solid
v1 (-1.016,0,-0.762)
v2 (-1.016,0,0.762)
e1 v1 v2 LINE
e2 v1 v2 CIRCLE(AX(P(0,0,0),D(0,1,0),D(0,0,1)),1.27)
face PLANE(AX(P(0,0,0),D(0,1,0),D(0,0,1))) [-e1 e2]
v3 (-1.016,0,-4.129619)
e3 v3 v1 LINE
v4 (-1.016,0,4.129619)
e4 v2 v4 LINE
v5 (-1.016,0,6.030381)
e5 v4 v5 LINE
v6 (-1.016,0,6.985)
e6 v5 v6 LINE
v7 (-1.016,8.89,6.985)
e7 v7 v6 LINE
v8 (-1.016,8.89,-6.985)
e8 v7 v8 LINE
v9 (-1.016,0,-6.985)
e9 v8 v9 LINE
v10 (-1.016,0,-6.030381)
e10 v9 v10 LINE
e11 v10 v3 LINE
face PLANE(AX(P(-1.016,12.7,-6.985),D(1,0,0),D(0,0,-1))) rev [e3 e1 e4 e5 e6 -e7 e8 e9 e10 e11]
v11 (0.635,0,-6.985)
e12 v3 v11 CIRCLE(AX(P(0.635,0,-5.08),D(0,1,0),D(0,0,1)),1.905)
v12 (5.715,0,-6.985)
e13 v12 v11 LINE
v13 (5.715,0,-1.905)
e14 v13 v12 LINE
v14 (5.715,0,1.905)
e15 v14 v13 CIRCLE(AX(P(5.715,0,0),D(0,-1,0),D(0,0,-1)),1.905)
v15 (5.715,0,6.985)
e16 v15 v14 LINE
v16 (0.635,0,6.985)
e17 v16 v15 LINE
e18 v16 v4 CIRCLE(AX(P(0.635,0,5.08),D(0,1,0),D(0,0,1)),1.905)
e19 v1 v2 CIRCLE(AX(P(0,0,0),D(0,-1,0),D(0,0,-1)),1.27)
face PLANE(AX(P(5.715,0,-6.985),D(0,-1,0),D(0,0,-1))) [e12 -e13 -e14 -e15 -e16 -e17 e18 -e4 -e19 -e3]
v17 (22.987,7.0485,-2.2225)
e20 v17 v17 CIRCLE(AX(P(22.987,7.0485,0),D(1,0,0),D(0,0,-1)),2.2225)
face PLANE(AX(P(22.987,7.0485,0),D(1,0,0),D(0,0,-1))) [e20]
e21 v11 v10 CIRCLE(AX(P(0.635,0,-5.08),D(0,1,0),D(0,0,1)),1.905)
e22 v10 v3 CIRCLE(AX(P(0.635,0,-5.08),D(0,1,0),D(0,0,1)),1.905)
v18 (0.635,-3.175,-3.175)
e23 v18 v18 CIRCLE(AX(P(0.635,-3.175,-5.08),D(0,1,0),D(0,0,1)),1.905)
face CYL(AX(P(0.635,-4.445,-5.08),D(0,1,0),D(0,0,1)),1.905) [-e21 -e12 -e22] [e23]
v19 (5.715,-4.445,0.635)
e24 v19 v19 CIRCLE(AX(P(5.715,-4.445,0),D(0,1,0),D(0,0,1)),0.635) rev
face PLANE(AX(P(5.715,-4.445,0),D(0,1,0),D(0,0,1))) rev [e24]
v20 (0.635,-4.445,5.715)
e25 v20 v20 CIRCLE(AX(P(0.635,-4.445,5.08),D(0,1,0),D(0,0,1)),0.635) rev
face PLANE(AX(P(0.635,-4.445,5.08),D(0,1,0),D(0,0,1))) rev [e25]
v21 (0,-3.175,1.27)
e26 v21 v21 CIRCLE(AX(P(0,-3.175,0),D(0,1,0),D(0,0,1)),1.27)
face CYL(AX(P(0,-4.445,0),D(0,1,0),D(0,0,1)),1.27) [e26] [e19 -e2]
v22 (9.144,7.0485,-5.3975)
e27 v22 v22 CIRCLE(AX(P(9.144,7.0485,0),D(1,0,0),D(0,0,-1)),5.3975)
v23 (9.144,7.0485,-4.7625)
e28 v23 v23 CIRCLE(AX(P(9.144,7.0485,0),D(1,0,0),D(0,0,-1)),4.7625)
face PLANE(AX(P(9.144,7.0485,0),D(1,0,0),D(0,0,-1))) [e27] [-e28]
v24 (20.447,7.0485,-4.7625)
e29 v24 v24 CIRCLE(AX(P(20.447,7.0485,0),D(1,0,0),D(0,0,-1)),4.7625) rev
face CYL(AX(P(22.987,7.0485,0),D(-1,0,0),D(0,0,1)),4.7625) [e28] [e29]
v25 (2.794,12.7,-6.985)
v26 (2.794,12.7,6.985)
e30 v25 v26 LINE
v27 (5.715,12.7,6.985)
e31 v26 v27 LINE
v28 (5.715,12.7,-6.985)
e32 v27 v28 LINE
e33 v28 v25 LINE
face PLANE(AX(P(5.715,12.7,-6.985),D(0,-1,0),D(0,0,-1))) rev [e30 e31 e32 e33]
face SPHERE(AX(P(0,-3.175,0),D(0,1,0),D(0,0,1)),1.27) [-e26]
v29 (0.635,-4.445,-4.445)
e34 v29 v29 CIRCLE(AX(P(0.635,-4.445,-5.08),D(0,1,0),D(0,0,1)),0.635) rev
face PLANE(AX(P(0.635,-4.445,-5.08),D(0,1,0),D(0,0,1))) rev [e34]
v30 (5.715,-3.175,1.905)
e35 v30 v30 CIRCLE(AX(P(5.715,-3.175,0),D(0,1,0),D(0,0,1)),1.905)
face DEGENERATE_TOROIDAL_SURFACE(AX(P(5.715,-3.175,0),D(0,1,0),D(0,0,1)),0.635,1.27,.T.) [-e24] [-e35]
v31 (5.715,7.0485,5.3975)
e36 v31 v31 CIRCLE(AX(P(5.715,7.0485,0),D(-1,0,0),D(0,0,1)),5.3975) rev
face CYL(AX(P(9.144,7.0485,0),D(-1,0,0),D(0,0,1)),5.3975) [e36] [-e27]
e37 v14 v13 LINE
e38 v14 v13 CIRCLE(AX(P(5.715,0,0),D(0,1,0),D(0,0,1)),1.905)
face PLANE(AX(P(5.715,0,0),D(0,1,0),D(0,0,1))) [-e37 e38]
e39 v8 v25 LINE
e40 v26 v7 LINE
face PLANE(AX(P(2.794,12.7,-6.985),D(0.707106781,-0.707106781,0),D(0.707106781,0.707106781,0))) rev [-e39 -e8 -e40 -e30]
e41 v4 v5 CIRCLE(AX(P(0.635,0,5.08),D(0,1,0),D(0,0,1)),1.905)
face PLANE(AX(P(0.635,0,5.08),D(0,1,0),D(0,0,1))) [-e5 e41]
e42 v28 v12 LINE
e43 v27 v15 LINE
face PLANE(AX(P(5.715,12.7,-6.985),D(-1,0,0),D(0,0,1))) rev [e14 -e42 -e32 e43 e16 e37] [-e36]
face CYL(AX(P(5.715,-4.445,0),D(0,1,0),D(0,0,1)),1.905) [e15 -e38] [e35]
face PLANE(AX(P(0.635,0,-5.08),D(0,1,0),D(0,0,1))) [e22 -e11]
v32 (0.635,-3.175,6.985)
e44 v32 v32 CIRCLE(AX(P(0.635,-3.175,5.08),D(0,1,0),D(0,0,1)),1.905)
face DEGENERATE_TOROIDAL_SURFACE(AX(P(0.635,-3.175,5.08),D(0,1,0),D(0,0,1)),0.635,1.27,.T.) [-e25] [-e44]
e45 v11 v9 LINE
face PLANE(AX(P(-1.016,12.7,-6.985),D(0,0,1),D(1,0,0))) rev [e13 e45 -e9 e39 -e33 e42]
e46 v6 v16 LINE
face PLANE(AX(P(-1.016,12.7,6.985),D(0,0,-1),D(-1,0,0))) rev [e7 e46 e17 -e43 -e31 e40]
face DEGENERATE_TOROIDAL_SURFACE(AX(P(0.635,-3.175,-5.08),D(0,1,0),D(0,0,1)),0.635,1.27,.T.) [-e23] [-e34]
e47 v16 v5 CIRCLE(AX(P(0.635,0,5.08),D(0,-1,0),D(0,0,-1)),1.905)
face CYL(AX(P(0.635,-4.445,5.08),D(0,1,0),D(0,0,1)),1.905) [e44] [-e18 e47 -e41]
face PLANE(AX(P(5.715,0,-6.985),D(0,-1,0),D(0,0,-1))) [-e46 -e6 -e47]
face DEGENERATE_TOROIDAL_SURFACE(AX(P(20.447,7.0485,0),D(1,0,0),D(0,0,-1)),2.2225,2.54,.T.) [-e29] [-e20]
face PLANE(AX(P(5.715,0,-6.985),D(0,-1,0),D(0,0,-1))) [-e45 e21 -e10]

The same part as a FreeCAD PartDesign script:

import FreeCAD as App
import Part
import Sketcher
Q = App.Units.Quantity


def edges_at(feature, points):
    """Names of the edges that pass closest to the given points."""
    edges = feature.Shape.Edges
    near = lambda p: min(range(len(edges)), key=lambda i: edges[i].distToShape(Part.Vertex(*p))[0])
    return sorted({f"Edge{near(p) + 1}" for p in points})

doc = App.newDocument("Part")
body = doc.addObject("PartDesign::Body", "Body")

sketch1 = body.newObject("Sketcher::SketchObject", "Sketch")
sketch1.AttachmentSupport = (doc.getObject("XZ_Plane"), [""])
sketch1.MapMode = "FlatFace"
sketch1.addGeometry(Part.Circle(App.Vector(0.635, -5.08, 0), App.Vector(0, 0, 1), 1.905), False)
sketch1.addConstraint([
    Sketcher.Constraint("Diameter", 0, Q("0.15 in")),
    Sketcher.Constraint("DistanceY", 0, 3, -1, 1, Q("0.2 in")),
    Sketcher.Constraint("DistanceX", -1, 1, 0, 3, Q("0.025 in")),
])
pad1 = body.newObject("PartDesign::Pad", "Pad")
pad1.Profile = sketch1
pad1.Length = Q("0.175 in")
body2 = doc.addObject("PartDesign::Body", "Body001")

sketch2 = body2.newObject("Sketcher::SketchObject", "Sketch001")
sketch2.AttachmentSupport = (doc.getObject("XZ_Plane001"), [""])
sketch2.MapMode = "FlatFace"
sketch2.addGeometry(Part.Circle(App.Vector(0.635, 5.08, 0), App.Vector(0, 0, 1), 1.905), False)
sketch2.addConstraint([
    Sketcher.Constraint("Diameter", 0, Q("0.15 in")),
    Sketcher.Constraint("DistanceY", -1, 1, 0, 3, Q("0.2 in")),
    Sketcher.Constraint("DistanceX", -1, 1, 0, 3, Q("0.025 in")),
])
pad2 = body2.newObject("PartDesign::Pad", "Pad001")
pad2.Profile = sketch2
pad2.Length = Q("0.175 in")
body3 = doc.addObject("PartDesign::Body", "Body002")

sketch3 = body3.newObject("Sketcher::SketchObject", "Sketch002")
sketch3.AttachmentSupport = (doc.getObject("XZ_Plane002"), [""])
sketch3.MapMode = "FlatFace"
sketch3.addGeometry(Part.Circle(App.Vector(5.715, 0, 0), App.Vector(0, 0, 1), 1.905), False)
sketch3.addConstraint([
    Sketcher.Constraint("PointOnObject", 0, 3, -1),
    Sketcher.Constraint("Diameter", 0, Q("0.15 in")),
    Sketcher.Constraint("DistanceX", -1, 1, 0, 3, Q("0.225 in")),
])
pad3 = body3.newObject("PartDesign::Pad", "Pad002")
pad3.Profile = sketch3
pad3.Length = Q("0.175 in")
body4 = doc.addObject("PartDesign::Body", "Body003")

sketch4 = body4.newObject("Sketcher::SketchObject", "Sketch003")
sketch4.AttachmentSupport = (doc.getObject("XZ_Plane003"), [""])
sketch4.MapMode = "FlatFace"
sketch4.addGeometry(Part.Circle(App.Vector(0, 0, 0), App.Vector(0, 0, 1), 1.27), False)
sketch4.addConstraint([
    Sketcher.Constraint("Coincident", 0, 3, -1, 1),
    Sketcher.Constraint("Diameter", 0, Q("0.1 in")),
])
pad4 = body4.newObject("PartDesign::Pad", "Pad003")
pad4.Profile = sketch4
pad4.Length = Q("0.175 in")
body.AllowCompound = True
doc.recompute()

boolean = body.newObject("PartDesign::Boolean", "Boolean")
boolean.Type = "Fuse"
boolean.addObjects([body2])
doc.recompute()

boolean2 = body.newObject("PartDesign::Boolean", "Boolean001")
boolean2.Type = "Fuse"
boolean2.addObjects([body3])
doc.recompute()

boolean3 = body.newObject("PartDesign::Boolean", "Boolean002")
boolean3.Type = "Fuse"
boolean3.addObjects([body4])

sketch5 = body.newObject("Sketcher::SketchObject", "Sketch004")
sketch5.AttachmentSupport = (doc.getObject("XZ_Plane"), [""])
sketch5.MapMode = "FlatFace"
sketch5.addGeometry([
    Part.LineSegment(App.Vector(5.715, 6.985, 0), App.Vector(5.715, -6.985, 0)),
    Part.LineSegment(App.Vector(5.715, -6.985, 0), App.Vector(-1.016, -6.985, 0)),
    Part.LineSegment(App.Vector(-1.016, -6.985, 0), App.Vector(-1.016, 6.985, 0)),
    Part.LineSegment(App.Vector(-1.016, 6.985, 0), App.Vector(5.715, 6.985, 0)),
], False)
sketch5.addConstraint([
    Sketcher.Constraint("Coincident", 0, 2, 1, 1),
    Sketcher.Constraint("Coincident", 1, 2, 2, 1),
    Sketcher.Constraint("Coincident", 2, 2, 3, 1),
    Sketcher.Constraint("Coincident", 3, 2, 0, 1),
    Sketcher.Constraint("Vertical", 0),
    Sketcher.Constraint("Horizontal", 1),
    Sketcher.Constraint("Vertical", 2),
    Sketcher.Constraint("Horizontal", 3),
    Sketcher.Constraint("DistanceY", 0, 2, 0, 1, Q("0.55 in")),
    Sketcher.Constraint("DistanceX", 1, 2, 1, 1, Q("0.265 in")),
    Sketcher.Constraint("DistanceX", 1, 2, -1, 1, Q("0.04 in")),
    Sketcher.Constraint("DistanceY", 0, 2, -1, 1, Q("0.275 in")),
])
pad5 = body.newObject("PartDesign::Pad", "Pad004")
pad5.Profile = sketch5
pad5.Length = Q("0.5 in")
pad5.Reversed = True
doc.recompute()

chamfer = body.newObject("PartDesign::Chamfer", "Chamfer")
chamfer.Base = (pad5, edges_at(pad5, [(-1.016, 12.7, 0)]))
chamfer.Size = Q("0.15 in")

sketch6 = body.newObject("Sketcher::SketchObject", "Sketch005")
sketch6.AttachmentSupport = (doc.getObject("YZ_Plane"), [""])
sketch6.MapMode = "FlatFace"
sketch6.AttachmentOffset = App.Placement(App.Vector(0, 0, 0.225 * 25.4), App.Rotation())
sketch6.addGeometry(Part.Circle(App.Vector(7.0485, 0, 0), App.Vector(0, 0, 1), 5.3975), False)
sketch6.addConstraint([
    Sketcher.Constraint("PointOnObject", 0, 3, -1),
    Sketcher.Constraint("Diameter", 0, Q("0.425 in")),
    Sketcher.Constraint("DistanceX", -1, 1, 0, 3, Q("0.2775 in")),
])
pad6 = body.newObject("PartDesign::Pad", "Pad005")
pad6.Profile = sketch6
pad6.Length = Q("0.135 in")

sketch7 = body.newObject("Sketcher::SketchObject", "Sketch006")
sketch7.AttachmentSupport = (doc.getObject("YZ_Plane"), [""])
sketch7.MapMode = "FlatFace"
sketch7.AttachmentOffset = App.Placement(App.Vector(0, 0, 0.36 * 25.4), App.Rotation())
sketch7.addGeometry(Part.Circle(App.Vector(7.0485, 0, 0), App.Vector(0, 0, 1), 4.7625), False)
sketch7.addConstraint([
    Sketcher.Constraint("PointOnObject", 0, 3, -1),
    Sketcher.Constraint("Diameter", 0, Q("0.375 in")),
    Sketcher.Constraint("DistanceX", -1, 1, 0, 3, Q("0.2775 in")),
])
pad7 = body.newObject("PartDesign::Pad", "Pad006")
pad7.Profile = sketch7
pad7.Length = Q("0.545 in")
doc.recompute()

fillet = body.newObject("PartDesign::Fillet", "Fillet")
fillet.Base = (pad7, edges_at(pad7, [(22.987, 7.048, 4.763)]))
fillet.Radius = Q("0.1 in")
doc.recompute()

fillet2 = body.newObject("PartDesign::Fillet", "Fillet001")
fillet2.Base = (fillet, edges_at(fillet, [
    (-1.27, -4.445, 5.08),
    (3.81, -4.445, 0),
    (-1.27, -4.445, 0),
    (-1.27, -4.445, -5.08),
]))
fillet2.Radius = Q("0.05 in")

doc.recompute()
